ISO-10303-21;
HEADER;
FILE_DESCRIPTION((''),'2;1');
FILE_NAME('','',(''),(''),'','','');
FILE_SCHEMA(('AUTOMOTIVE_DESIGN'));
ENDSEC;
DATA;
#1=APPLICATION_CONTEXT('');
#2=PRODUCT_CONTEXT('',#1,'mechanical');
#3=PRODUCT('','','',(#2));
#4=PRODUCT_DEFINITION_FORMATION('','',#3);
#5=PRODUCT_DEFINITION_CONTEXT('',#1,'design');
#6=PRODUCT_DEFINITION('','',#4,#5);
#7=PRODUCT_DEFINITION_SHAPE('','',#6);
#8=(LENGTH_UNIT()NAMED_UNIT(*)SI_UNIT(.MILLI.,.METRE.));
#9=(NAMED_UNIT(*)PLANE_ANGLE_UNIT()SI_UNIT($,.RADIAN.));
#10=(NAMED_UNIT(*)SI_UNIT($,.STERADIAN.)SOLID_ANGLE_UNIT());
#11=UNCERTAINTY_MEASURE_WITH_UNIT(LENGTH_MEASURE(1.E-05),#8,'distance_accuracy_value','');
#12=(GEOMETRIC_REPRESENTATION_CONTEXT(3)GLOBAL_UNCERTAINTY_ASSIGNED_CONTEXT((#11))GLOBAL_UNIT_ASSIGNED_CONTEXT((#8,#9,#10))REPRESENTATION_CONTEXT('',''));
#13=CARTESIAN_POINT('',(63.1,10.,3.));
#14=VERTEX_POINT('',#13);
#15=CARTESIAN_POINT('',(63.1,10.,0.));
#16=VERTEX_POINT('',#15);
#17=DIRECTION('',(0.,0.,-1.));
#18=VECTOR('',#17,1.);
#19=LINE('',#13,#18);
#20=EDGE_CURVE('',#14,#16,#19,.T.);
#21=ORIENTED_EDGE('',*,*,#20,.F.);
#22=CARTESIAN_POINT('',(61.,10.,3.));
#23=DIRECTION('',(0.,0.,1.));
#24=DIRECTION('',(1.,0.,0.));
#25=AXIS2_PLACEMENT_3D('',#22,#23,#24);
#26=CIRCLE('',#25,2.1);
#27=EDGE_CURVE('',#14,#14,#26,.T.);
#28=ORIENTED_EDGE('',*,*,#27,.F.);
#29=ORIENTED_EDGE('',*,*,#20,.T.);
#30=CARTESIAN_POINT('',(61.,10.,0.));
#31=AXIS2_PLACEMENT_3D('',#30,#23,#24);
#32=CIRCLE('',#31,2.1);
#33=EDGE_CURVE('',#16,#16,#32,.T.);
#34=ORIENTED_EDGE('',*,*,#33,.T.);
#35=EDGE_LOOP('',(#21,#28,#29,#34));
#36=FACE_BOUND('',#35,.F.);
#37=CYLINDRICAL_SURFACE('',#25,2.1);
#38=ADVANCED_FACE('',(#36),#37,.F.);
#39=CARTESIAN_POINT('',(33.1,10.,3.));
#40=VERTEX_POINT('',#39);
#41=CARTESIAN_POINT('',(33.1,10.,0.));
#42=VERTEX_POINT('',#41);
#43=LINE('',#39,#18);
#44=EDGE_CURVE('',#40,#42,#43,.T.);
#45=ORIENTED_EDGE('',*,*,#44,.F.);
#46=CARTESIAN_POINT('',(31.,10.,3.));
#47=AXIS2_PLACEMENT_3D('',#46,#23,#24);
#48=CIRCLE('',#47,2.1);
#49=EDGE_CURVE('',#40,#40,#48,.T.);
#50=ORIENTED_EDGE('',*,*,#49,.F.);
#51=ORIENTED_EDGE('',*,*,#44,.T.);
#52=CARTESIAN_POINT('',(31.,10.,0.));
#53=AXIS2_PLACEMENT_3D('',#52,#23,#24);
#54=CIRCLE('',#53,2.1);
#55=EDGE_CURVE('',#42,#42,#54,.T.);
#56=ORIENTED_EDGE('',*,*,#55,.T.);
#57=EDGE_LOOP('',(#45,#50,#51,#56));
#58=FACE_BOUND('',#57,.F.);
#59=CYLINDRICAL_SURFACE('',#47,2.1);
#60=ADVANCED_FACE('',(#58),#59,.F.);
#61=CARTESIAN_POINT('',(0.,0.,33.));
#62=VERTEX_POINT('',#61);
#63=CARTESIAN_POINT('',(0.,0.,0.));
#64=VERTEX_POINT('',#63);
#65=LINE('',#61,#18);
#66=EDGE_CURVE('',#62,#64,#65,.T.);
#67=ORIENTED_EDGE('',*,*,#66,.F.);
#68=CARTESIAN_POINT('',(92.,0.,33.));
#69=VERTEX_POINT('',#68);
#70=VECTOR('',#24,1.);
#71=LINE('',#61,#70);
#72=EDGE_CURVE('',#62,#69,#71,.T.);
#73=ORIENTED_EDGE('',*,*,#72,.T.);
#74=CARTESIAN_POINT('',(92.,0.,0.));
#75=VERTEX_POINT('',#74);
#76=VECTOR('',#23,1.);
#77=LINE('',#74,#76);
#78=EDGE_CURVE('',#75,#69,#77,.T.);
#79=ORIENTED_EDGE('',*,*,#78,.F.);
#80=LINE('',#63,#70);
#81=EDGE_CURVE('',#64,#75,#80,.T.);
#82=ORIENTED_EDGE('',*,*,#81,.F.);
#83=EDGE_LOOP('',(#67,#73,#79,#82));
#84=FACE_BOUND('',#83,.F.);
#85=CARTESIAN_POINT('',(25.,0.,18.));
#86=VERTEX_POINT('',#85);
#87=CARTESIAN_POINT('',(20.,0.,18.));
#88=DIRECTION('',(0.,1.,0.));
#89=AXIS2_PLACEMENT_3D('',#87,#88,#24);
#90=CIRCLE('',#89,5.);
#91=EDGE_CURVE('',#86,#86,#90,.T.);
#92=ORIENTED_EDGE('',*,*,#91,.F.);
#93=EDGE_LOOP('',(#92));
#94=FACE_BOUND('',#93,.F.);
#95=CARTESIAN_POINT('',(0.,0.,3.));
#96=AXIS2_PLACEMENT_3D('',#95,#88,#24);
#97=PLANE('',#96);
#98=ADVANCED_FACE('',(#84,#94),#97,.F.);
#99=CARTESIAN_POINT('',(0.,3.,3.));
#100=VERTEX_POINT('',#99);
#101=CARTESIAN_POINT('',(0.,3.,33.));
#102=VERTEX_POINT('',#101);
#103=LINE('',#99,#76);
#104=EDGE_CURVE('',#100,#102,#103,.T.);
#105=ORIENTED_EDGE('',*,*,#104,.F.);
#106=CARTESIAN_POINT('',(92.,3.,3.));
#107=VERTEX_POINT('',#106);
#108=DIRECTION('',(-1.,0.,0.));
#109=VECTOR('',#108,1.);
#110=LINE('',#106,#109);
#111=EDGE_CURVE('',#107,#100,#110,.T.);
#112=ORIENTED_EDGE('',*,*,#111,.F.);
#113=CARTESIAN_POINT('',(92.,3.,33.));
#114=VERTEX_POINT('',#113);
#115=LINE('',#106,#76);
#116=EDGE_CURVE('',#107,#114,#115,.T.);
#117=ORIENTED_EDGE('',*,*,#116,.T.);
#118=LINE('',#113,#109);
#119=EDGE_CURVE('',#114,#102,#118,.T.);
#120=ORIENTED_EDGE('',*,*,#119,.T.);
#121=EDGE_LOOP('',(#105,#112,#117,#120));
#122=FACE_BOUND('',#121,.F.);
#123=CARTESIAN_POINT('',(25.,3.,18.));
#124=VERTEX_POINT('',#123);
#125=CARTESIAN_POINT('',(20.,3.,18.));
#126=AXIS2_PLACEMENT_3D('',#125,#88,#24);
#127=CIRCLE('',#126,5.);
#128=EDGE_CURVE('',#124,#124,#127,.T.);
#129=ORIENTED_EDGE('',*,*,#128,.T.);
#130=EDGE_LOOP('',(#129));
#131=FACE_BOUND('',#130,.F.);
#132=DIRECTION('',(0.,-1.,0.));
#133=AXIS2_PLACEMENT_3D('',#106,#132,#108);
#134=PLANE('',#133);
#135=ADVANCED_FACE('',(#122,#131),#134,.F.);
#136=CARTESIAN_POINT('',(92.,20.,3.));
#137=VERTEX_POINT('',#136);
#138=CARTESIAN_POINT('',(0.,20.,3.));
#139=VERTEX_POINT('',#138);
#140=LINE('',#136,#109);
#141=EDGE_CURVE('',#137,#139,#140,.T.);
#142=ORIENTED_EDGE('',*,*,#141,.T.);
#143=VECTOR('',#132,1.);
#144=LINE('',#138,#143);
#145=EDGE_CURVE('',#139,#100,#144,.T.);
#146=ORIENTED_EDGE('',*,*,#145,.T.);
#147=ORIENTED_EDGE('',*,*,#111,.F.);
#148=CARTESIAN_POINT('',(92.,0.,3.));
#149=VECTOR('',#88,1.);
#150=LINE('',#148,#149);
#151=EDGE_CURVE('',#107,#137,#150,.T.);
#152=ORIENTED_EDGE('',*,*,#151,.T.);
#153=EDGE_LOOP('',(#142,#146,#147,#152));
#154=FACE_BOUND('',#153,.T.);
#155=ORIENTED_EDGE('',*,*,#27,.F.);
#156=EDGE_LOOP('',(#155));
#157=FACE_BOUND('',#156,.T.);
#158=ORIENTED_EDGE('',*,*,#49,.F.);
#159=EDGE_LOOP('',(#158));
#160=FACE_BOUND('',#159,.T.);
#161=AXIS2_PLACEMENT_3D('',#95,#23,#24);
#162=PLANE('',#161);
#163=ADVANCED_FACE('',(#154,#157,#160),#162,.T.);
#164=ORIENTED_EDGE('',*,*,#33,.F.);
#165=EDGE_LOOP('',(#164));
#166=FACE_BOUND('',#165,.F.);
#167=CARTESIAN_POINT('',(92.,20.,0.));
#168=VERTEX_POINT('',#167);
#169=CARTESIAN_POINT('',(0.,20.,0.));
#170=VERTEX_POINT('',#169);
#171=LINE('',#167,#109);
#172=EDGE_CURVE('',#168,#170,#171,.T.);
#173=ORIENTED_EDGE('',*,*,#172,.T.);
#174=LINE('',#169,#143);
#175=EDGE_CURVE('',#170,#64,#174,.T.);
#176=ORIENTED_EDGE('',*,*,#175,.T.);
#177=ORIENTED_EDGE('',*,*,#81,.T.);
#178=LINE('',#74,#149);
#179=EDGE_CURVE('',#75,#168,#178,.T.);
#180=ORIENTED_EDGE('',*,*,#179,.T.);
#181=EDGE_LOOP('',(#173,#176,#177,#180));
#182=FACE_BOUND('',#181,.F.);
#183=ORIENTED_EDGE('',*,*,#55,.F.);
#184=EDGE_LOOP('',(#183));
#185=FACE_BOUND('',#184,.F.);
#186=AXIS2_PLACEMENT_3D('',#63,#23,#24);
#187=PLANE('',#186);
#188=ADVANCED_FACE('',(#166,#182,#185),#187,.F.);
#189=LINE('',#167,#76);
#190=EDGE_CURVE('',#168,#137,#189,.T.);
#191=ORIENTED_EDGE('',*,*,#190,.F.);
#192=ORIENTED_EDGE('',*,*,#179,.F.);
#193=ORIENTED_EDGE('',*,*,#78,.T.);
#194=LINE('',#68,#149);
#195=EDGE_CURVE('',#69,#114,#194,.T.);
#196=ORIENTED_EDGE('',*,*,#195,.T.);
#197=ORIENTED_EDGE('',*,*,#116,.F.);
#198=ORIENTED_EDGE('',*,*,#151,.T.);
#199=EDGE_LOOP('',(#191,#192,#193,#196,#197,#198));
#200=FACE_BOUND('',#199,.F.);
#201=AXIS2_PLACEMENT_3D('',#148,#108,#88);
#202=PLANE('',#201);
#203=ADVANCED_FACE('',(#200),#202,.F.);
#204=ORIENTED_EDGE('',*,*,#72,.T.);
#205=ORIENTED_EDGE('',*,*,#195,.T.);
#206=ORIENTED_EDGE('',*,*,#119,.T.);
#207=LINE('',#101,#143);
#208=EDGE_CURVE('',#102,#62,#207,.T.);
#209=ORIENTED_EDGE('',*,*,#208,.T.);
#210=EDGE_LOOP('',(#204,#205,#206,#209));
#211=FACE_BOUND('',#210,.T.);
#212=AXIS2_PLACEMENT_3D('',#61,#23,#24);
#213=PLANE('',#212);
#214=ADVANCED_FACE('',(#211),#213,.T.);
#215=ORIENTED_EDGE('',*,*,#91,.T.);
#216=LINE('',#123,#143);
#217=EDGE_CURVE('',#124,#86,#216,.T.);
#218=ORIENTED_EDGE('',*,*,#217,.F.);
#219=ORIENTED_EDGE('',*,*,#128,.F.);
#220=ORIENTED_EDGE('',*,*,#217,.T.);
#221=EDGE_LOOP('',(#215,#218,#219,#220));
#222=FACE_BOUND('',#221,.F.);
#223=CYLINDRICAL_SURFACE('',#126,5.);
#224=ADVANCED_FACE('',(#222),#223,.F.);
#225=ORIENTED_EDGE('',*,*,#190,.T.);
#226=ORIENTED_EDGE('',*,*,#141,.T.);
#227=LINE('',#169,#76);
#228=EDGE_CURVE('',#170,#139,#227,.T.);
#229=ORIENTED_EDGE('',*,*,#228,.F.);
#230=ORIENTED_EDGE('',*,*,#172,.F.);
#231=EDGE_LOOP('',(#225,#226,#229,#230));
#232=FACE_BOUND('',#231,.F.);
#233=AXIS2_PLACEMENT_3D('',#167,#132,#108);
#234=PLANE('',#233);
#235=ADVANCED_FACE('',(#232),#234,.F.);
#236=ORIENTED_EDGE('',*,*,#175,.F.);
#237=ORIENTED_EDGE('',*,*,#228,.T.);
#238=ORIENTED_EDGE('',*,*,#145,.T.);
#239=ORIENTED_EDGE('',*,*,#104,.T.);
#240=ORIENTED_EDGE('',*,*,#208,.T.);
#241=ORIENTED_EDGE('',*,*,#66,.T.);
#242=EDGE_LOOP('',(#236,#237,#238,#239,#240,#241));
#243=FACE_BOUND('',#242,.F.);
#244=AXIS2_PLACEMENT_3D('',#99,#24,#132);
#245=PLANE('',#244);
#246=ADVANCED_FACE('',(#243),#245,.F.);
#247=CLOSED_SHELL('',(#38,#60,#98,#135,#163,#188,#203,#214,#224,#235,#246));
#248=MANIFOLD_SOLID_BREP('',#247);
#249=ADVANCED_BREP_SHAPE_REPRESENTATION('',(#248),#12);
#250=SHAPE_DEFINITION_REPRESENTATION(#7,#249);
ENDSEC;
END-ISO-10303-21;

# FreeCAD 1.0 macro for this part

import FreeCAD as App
import Part
import Sketcher
Q = App.Units.Quantity

doc = App.newDocument("Part")
body = doc.addObject("PartDesign::Body", "Body")

sketch1 = body.newObject("Sketcher::SketchObject", "Sketch")
sketch1.AttachmentSupport = (doc.getObject("XY_Plane"), [""])
sketch1.MapMode = "FlatFace"
sketch1.addGeometry([
    Part.LineSegment(App.Vector(0, 20, 0), App.Vector(0, 0, 0)),
    Part.LineSegment(App.Vector(0, 0, 0), App.Vector(92, 0, 0)),
    Part.LineSegment(App.Vector(92, 0, 0), App.Vector(92, 20, 0)),
    Part.LineSegment(App.Vector(92, 20, 0), App.Vector(0, 20, 0)),
], False)
sketch1.addConstraint([
    Sketcher.Constraint("Coincident", 0, 2, 1, 1),
    Sketcher.Constraint("Coincident", 1, 2, 2, 1),
    Sketcher.Constraint("Coincident", 2, 2, 3, 1),
    Sketcher.Constraint("Coincident", 3, 2, 0, 1),
    Sketcher.Constraint("Vertical", 0),
    Sketcher.Constraint("Horizontal", 1),
    Sketcher.Constraint("Vertical", 2),
    Sketcher.Constraint("Horizontal", 3),
    Sketcher.Constraint("Coincident", 0, 2, -1, 1),
    Sketcher.Constraint("DistanceX", 1, 1, 1, 2, Q("92 mm")),
    Sketcher.Constraint("DistanceY", 0, 2, 0, 1, Q("20 mm")),
])
pad1 = body.newObject("PartDesign::Pad", "Pad")
pad1.Profile = sketch1
pad1.Length = 3

sketch2 = body.newObject("Sketcher::SketchObject", "Sketch001")
sketch2.AttachmentSupport = (doc.getObject("XY_Plane"), [""])
sketch2.MapMode = "FlatFace"
sketch2.AttachmentOffset = App.Placement(App.Vector(0, 0, 3), App.Rotation())
sketch2.addGeometry([
    Part.Circle(App.Vector(31, 10, 0), App.Vector(0, 0, 1), 2.1),
    Part.Circle(App.Vector(61, 10, 0), App.Vector(0, 0, 1), 2.1),
], False)
sketch2.addConstraint([
    Sketcher.Constraint("Equal", 0, 1),
    Sketcher.Constraint("Horizontal", 0, 3, 1, 3),
    Sketcher.Constraint("Diameter", 0, Q("4.2 mm")),
    Sketcher.Constraint("DistanceX", -1, 1, 0, 3, Q("31 mm")),
    Sketcher.Constraint("DistanceY", -1, 1, 0, 3, Q("10 mm")),
    Sketcher.Constraint("DistanceX", -1, 1, 1, 3, Q("61 mm")),
])
pocket1 = body.newObject("PartDesign::Pocket", "Pocket")
pocket1.Profile = sketch2
pocket1.Type = "UpToFirst"

sketch3 = body.newObject("Sketcher::SketchObject", "Sketch002")
sketch3.AttachmentSupport = (doc.getObject("XY_Plane"), [""])
sketch3.MapMode = "FlatFace"
sketch3.AttachmentOffset = App.Placement(App.Vector(0, 0, 3), App.Rotation())
sketch3.addGeometry([
    Part.LineSegment(App.Vector(0, 0, 0), App.Vector(92, 0, 0)),
    Part.LineSegment(App.Vector(92, 0, 0), App.Vector(92, 3, 0)),
    Part.LineSegment(App.Vector(92, 3, 0), App.Vector(0, 3, 0)),
    Part.LineSegment(App.Vector(0, 3, 0), App.Vector(0, 0, 0)),
], False)
sketch3.addConstraint([
    Sketcher.Constraint("Coincident", 0, 2, 1, 1),
    Sketcher.Constraint("Coincident", 1, 2, 2, 1),
    Sketcher.Constraint("Coincident", 2, 2, 3, 1),
    Sketcher.Constraint("Coincident", 3, 2, 0, 1),
    Sketcher.Constraint("Horizontal", 0),
    Sketcher.Constraint("Vertical", 1),
    Sketcher.Constraint("Horizontal", 2),
    Sketcher.Constraint("Vertical", 3),
    Sketcher.Constraint("Coincident", 3, 2, -1, 1),
    Sketcher.Constraint("DistanceY", 1, 1, 1, 2, Q("3 mm")),
    Sketcher.Constraint("DistanceX", 0, 1, 0, 2, Q("92 mm")),
])
pad2 = body.newObject("PartDesign::Pad", "Pad001")
pad2.Profile = sketch3
pad2.Length = 30

sketch4 = body.newObject("Sketcher::SketchObject", "Sketch003")
sketch4.AttachmentSupport = (doc.getObject("XZ_Plane"), [""])
sketch4.MapMode = "FlatFace"
sketch4.AttachmentOffset = App.Placement(App.Vector(0, 0, -3), App.Rotation())
sketch4.addGeometry(Part.Circle(App.Vector(20, 18, 0), App.Vector(0, 0, 1), 5), False)
sketch4.addConstraint([
    Sketcher.Constraint("Diameter", 0, Q("10 mm")),
    Sketcher.Constraint("DistanceX", -1, 1, 0, 3, Q("20 mm")),
    Sketcher.Constraint("DistanceY", -1, 1, 0, 3, Q("18 mm")),
])
pocket2 = body.newObject("PartDesign::Pocket", "Pocket001")
pocket2.Profile = sketch4
pocket2.Length = 30
pocket2.Reversed = True

doc.recompute()
